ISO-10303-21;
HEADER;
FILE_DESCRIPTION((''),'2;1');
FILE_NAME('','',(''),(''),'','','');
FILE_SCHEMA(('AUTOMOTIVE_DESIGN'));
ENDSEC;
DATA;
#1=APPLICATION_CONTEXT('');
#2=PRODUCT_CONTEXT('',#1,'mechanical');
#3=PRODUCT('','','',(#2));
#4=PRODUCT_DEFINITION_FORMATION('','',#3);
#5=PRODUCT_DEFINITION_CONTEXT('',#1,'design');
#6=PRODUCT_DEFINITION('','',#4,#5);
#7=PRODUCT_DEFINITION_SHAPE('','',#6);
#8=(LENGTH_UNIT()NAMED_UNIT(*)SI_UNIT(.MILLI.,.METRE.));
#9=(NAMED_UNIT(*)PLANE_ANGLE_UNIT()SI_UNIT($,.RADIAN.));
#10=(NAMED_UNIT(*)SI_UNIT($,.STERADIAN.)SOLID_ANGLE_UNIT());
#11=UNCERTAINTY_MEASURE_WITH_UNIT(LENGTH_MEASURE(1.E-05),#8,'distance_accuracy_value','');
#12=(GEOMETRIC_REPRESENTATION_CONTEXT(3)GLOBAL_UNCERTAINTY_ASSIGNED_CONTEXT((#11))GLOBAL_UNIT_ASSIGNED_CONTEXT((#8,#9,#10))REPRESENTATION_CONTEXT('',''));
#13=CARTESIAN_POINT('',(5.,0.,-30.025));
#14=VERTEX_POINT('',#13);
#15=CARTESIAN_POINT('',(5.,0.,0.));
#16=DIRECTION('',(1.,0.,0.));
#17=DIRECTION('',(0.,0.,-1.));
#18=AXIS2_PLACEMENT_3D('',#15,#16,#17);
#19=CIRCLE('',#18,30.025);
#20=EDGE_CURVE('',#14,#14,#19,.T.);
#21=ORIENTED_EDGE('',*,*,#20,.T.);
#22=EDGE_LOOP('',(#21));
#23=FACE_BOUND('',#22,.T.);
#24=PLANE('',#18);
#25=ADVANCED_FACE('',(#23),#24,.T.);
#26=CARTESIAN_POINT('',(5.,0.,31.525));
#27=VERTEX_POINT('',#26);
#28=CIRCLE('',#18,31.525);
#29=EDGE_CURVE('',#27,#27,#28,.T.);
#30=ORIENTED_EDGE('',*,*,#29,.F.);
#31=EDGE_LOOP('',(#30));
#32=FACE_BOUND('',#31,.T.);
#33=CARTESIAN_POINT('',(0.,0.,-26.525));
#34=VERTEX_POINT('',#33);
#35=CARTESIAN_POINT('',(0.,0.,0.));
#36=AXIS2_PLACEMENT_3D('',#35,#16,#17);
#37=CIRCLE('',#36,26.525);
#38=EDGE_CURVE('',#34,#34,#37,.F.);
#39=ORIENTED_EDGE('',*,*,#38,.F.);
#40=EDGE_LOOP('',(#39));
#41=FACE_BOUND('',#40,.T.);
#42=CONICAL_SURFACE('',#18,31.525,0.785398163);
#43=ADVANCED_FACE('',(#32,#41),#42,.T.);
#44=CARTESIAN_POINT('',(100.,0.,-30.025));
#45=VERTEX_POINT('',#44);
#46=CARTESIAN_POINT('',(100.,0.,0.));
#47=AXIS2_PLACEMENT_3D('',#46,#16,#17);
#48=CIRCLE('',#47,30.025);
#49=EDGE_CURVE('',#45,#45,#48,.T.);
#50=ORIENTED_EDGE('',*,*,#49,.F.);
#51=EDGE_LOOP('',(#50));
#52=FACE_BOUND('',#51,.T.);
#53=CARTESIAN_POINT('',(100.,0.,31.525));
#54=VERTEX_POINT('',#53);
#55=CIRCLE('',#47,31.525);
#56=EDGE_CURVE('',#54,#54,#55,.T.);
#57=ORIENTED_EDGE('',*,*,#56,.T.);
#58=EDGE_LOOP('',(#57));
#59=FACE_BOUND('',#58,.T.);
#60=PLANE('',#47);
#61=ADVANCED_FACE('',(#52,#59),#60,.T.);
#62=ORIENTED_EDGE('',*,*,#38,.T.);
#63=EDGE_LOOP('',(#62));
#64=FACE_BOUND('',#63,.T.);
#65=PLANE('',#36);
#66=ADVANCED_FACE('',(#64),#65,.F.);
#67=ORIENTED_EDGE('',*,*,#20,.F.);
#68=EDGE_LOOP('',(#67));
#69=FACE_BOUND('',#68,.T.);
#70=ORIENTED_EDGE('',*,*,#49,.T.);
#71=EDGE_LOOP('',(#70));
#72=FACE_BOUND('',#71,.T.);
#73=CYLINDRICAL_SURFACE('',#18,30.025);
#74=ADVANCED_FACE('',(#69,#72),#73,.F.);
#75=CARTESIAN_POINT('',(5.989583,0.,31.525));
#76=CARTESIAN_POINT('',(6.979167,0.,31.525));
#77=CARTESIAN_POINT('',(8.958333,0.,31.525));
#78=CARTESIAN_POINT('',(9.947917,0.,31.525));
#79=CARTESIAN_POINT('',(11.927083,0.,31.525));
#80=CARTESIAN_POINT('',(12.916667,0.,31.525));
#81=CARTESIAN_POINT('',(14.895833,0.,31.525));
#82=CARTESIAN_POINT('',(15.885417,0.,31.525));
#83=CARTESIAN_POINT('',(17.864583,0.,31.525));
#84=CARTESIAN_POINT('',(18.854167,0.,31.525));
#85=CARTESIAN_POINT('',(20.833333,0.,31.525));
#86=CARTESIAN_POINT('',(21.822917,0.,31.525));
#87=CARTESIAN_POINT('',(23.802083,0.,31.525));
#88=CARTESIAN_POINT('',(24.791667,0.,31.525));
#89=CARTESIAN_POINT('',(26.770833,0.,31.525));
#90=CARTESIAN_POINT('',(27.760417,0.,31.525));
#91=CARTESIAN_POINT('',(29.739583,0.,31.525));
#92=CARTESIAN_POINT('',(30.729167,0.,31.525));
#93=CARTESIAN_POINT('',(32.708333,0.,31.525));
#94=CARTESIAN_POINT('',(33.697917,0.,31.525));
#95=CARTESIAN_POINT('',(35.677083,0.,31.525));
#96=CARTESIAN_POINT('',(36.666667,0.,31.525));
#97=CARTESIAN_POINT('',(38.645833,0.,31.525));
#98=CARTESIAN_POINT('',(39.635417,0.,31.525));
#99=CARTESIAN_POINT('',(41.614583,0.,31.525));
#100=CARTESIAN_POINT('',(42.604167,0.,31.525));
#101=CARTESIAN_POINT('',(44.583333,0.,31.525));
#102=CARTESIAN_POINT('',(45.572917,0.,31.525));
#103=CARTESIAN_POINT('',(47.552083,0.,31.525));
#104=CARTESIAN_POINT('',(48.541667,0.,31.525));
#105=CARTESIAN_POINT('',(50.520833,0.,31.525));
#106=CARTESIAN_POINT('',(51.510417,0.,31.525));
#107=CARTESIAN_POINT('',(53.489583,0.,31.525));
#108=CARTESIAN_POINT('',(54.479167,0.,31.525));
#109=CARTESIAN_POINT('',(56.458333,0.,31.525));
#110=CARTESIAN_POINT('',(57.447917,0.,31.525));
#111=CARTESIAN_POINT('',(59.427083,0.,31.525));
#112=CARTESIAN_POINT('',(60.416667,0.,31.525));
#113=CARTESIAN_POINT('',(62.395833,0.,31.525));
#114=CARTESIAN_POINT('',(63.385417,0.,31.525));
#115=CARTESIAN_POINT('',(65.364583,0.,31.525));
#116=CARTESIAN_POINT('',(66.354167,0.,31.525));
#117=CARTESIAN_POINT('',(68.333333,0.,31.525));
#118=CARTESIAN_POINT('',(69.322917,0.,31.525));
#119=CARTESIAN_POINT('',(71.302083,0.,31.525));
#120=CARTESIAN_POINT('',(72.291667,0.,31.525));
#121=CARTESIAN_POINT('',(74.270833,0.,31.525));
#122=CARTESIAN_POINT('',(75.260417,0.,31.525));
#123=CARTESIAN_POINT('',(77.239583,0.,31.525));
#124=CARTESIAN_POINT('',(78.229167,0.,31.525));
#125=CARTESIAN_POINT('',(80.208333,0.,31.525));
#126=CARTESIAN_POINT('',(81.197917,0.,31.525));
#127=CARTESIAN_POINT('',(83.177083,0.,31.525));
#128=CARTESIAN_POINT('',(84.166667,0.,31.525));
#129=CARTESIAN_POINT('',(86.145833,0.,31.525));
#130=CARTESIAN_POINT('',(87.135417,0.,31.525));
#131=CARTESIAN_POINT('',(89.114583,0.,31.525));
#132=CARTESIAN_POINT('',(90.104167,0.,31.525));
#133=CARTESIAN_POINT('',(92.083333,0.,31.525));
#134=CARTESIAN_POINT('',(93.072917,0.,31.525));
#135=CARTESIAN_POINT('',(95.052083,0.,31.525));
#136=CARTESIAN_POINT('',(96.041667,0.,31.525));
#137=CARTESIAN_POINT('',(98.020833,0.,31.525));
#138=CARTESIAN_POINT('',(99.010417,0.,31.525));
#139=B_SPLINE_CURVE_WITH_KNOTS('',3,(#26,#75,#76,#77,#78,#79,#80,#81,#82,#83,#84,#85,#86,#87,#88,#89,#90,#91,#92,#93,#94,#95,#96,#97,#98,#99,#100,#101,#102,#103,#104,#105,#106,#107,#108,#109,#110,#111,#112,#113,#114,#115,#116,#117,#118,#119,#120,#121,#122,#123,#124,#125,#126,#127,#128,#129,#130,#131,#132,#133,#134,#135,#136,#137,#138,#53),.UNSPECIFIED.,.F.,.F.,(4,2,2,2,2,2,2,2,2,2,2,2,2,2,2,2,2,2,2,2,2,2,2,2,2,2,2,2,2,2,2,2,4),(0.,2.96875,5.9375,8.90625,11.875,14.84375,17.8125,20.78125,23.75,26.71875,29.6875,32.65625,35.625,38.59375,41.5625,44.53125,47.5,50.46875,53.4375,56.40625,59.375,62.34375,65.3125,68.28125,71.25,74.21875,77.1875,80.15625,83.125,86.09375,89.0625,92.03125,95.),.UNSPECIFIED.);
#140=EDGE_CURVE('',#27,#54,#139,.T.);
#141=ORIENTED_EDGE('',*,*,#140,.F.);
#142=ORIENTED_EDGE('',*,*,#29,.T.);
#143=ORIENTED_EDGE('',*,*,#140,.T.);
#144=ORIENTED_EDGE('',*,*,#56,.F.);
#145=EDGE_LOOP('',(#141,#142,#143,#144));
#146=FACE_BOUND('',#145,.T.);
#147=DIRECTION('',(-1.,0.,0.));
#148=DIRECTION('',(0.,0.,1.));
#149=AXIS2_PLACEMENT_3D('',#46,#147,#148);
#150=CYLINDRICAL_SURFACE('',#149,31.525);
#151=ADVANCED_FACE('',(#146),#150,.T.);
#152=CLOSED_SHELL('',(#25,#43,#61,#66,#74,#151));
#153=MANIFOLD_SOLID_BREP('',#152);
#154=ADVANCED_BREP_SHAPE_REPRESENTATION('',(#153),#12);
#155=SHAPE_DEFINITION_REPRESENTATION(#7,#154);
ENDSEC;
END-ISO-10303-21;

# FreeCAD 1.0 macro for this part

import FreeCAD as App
import Part
import Sketcher

V = App.Vector


def edges_at(feature, points):
    """Names of the edges that pass closest to the given points."""
    edges = feature.Shape.Edges
    near = lambda p: min(range(len(edges)), key=lambda i: edges[i].distToShape(Part.Vertex(*p))[0])
    return sorted({f"Edge{near(p) + 1}" for p in points})

doc = App.newDocument("Part")
body = doc.addObject("PartDesign::Body", "Body")

# Sketch on YZ plane
sketch1 = body.newObject("Sketcher::SketchObject", "Sketch")
sketch1.AttachmentSupport = (doc.getObject("YZ_Plane"), [""])
sketch1.MapMode = "FlatFace"
sketch1.addGeometry(Part.Circle(V(0, 0, 0), V(0, 0, 1), 31.525), False)
sketch1.addConstraint([
    Sketcher.Constraint("Coincident", 0, 3, -1, 1),
    Sketcher.Constraint("Diameter", 0, 63.05),
])
pad1 = body.newObject("PartDesign::Pad", "Pad")
pad1.Profile = sketch1
pad1.Length = 100

# Sketch on YZ plane
sketch2 = body.newObject("Sketcher::SketchObject", "Sketch001")
sketch2.AttachmentSupport = (doc.getObject("YZ_Plane"), [""])
sketch2.MapMode = "FlatFace"
sketch2.AttachmentOffset = App.Placement(V(0, 0, 100), App.Rotation())
sketch2.addGeometry(Part.Circle(V(0, 0, 0), V(0, 0, 1), 30.025), False)
sketch2.addConstraint([
    Sketcher.Constraint("Coincident", 0, 3, -1, 1),
    Sketcher.Constraint("Diameter", 0, 60.05),
])
pocket1 = body.newObject("PartDesign::Pocket", "Pocket")
pocket1.Profile = sketch2
pocket1.Length = 95
doc.recompute()

chamfer = body.newObject("PartDesign::Chamfer", "Chamfer")
chamfer.Base = (pocket1, edges_at(pocket1, [(0, 0, -31.525)]))
chamfer.Size = 5

doc.recompute()
